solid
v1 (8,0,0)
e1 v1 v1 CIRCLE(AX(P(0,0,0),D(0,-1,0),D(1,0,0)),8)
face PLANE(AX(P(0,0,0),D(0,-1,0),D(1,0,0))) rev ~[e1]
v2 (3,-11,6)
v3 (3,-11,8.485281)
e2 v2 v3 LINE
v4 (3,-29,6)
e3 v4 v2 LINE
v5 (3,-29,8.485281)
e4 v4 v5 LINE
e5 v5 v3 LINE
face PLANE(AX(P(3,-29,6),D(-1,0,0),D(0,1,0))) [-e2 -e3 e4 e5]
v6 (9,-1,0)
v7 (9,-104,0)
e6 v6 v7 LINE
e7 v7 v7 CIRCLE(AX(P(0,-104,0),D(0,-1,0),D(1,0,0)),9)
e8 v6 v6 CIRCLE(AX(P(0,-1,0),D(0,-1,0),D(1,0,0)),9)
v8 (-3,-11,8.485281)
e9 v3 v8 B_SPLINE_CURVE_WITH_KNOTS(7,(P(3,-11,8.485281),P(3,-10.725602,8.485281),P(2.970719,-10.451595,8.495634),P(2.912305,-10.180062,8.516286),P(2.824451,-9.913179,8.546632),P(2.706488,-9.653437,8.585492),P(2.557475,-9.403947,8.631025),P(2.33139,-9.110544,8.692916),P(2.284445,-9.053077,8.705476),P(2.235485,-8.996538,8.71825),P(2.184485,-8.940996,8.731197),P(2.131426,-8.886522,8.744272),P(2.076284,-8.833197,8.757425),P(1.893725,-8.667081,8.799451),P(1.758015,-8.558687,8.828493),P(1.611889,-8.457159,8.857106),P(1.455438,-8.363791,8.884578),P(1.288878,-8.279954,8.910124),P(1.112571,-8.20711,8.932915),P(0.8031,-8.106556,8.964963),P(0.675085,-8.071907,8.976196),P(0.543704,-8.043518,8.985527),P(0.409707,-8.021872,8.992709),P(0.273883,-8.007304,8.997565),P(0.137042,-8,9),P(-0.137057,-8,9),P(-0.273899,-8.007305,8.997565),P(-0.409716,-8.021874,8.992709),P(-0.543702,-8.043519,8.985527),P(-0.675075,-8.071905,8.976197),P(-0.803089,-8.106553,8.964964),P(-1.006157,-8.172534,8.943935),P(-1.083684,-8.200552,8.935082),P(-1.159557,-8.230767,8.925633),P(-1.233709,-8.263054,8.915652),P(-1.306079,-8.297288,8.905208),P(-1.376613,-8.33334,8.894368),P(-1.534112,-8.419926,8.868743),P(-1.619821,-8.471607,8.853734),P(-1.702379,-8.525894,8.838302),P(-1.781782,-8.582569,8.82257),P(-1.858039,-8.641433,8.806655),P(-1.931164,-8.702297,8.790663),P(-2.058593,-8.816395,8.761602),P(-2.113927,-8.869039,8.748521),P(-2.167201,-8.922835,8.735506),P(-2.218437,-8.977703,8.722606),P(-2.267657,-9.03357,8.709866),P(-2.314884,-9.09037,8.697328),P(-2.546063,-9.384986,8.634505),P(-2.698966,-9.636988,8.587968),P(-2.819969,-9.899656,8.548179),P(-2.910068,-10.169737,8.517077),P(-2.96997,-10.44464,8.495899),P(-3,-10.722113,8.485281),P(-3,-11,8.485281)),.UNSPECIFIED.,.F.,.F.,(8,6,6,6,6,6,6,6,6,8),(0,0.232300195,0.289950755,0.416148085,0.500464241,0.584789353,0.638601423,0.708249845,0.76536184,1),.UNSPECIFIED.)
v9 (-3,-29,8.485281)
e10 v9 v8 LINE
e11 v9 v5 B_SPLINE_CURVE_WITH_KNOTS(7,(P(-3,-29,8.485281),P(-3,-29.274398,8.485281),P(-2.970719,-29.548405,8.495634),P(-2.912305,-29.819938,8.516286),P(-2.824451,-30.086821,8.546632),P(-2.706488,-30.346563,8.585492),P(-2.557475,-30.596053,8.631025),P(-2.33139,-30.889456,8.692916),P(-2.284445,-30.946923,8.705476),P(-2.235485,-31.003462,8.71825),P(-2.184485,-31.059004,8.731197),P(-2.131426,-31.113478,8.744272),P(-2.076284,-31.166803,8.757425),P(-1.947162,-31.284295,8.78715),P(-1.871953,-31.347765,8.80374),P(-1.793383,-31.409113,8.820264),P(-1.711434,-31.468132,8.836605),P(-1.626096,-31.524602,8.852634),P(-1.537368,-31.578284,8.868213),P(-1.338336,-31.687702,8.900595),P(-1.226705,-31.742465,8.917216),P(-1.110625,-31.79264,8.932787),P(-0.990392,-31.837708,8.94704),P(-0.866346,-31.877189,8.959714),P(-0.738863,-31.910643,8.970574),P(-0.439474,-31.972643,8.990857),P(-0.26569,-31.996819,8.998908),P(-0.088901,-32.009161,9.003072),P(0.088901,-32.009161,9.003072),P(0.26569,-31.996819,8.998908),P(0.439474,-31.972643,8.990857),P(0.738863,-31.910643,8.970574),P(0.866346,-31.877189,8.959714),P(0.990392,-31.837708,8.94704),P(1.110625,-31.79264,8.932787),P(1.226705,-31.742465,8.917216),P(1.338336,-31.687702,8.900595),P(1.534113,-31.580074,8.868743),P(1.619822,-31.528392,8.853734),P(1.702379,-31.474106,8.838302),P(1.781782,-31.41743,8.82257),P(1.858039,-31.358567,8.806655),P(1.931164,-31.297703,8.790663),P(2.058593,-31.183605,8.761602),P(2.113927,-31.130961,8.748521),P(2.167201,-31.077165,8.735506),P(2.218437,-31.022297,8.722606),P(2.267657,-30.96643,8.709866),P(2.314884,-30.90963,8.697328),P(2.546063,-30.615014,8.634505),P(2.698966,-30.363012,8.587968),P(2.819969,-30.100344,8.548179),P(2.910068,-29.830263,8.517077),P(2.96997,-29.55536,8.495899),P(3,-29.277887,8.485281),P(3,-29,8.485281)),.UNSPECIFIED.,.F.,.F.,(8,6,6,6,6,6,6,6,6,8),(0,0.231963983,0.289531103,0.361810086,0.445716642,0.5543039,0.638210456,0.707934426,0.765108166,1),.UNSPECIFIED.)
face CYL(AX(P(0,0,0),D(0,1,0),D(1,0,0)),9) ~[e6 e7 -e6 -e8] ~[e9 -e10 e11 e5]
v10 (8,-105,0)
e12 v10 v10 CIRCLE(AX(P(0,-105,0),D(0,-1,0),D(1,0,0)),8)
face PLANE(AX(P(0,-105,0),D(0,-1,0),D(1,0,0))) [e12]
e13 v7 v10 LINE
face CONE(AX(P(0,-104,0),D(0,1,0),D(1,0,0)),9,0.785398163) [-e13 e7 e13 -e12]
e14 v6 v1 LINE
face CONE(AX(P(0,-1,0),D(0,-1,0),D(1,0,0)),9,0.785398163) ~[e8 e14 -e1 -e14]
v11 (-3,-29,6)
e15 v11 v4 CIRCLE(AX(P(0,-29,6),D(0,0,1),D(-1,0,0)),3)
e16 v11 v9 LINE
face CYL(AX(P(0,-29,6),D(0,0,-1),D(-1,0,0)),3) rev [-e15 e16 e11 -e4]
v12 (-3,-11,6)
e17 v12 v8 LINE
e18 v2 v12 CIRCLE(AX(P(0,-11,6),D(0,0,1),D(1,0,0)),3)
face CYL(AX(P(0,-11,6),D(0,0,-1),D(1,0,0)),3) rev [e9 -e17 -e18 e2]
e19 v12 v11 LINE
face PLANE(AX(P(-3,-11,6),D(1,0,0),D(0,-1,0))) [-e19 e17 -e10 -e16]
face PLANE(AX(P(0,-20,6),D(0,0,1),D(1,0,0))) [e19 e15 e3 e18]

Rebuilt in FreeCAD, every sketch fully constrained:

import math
import FreeCAD as App
import Part
import Sketcher

V = App.Vector
Q = App.Units.Quantity

doc = App.newDocument("Part")
body = doc.addObject("PartDesign::Body", "Body")

# Sketch on XZ plane
sketch1 = body.newObject("Sketcher::SketchObject", "Sketch")
sketch1.AttachmentSupport = (doc.getObject("XZ_Plane"), [""])
sketch1.MapMode = "FlatFace"
sketch1.addGeometry(Part.Circle(V(0, 0, 0), V(0, 0, 1), 9), False)
sketch1.addConstraint([
    Sketcher.Constraint("Coincident", 0, 3, -1, 1),
    Sketcher.Constraint("Diameter", 0, Q("18 mm")),
])
pad1 = body.newObject("PartDesign::Pad", "Pad")
pad1.Profile = sketch1
pad1.Length = 105
doc.recompute()

chamfer = body.newObject("PartDesign::Chamfer", "Chamfer")
chamfer.Base = (pad1, ["Edge1"])
chamfer.UseAllEdges = True
chamfer.Size = 1

# Sketch on XY plane
sketch2 = body.newObject("Sketcher::SketchObject", "Sketch001")
sketch2.AttachmentSupport = (doc.getObject("XY_Plane"), [""])
sketch2.MapMode = "FlatFace"
sketch2.AttachmentOffset = App.Placement(V(0, 0, 6), App.Rotation())
sketch2.addGeometry([
    Part.LineSegment(V(3, -29, 0), V(3, -11, 0)),
    Part.ArcOfCircle(Part.Circle(V(0, -11, 0), V(0, 0, 1), 3), math.radians(0), math.radians(180)),
    Part.LineSegment(V(-3, -11, 0), V(-3, -29, 0)),
    Part.ArcOfCircle(Part.Circle(V(0, -29, 0), V(0, 0, 1), 3), math.radians(180), math.radians(360)),
], False)
sketch2.addConstraint([
    Sketcher.Constraint("Tangent", 0, 2, 1, 1),
    Sketcher.Constraint("Tangent", 1, 2, 2, 1),
    Sketcher.Constraint("Tangent", 2, 2, 3, 1),
    Sketcher.Constraint("Tangent", 3, 2, 0, 1),
    Sketcher.Constraint("Vertical", 0),
    Sketcher.Constraint("Vertical", 2),
    Sketcher.Constraint("PointOnObject", 1, 3, -2),
    Sketcher.Constraint("Radius", 1, Q("3 mm")),
    Sketcher.Constraint("DistanceY", 0, 1, 0, 2, Q("18 mm")),
    Sketcher.Constraint("DistanceY", 1, 3, -1, 1, Q("11 mm")),
])
pocket1 = body.newObject("PartDesign::Pocket", "Pocket")
pocket1.Profile = sketch2
pocket1.Length = 25
pocket1.Reversed = True

doc.recompute()
